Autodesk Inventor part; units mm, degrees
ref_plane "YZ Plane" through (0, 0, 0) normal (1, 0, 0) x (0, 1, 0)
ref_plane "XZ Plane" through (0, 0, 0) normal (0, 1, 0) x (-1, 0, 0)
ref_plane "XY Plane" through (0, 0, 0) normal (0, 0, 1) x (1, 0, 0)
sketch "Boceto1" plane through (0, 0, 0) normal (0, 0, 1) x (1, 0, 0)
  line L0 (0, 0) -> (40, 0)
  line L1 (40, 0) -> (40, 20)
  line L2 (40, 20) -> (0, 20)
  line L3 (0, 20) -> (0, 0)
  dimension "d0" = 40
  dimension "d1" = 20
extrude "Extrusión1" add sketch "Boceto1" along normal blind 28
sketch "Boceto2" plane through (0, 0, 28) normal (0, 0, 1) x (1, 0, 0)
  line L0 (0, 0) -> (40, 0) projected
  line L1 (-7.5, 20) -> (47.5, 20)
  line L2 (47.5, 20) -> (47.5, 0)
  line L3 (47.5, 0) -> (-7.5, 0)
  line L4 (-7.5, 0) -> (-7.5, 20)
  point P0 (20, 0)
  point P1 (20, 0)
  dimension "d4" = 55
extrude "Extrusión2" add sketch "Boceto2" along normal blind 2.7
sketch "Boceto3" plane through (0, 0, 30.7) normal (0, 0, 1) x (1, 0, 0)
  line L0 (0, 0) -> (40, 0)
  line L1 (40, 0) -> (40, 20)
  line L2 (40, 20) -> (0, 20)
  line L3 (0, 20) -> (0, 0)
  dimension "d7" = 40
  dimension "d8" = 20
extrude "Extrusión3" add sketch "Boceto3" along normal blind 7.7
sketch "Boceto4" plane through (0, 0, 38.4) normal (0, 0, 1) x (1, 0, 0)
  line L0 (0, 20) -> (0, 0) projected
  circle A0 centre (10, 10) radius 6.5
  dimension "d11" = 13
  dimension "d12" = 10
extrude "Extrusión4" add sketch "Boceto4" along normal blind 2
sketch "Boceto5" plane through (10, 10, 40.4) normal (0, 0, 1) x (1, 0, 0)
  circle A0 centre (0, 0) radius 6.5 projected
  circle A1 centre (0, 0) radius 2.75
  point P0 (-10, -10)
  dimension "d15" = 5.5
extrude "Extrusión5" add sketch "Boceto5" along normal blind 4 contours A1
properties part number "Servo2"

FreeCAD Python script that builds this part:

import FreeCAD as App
import Part
import Sketcher
from FreeCAD import Vector
Q = App.Units.Quantity


def add_polygon(sketch, points):
    """Adds a closed chain of lines whose ends are joined by coincident constraints."""
    first, n = sketch.GeometryCount, len(points)
    for a, b in zip(points, points[1:] + points[:1]):
        sketch.addGeometry(Part.LineSegment(App.Vector(*a, 0), App.Vector(*b, 0)), False)
    for i in range(n):
        sketch.addConstraint(Sketcher.Constraint("Coincident", first + i, 2, first + (i + 1) % n, 1))

doc = App.newDocument("Part")
params = doc.addObject("Spreadsheet::Sheet", "Params")
for row, (alias, value) in enumerate([
    ("sketch1_width", "40 mm"),
    ("sketch1_height", "20 mm"),
    ("pad1_length", "28 mm"),
    ("sketch2_width", "55 mm"),
    ("sketch2_height", "20 mm"),
    ("pad2_length", "2.7 mm"),
    ("sketch3_width", "40 mm"),
    ("sketch3_height", "20 mm"),
    ("pad3_length", "7.7 mm"),
    ("sketch4_diameter", "13 mm"),
    ("pad4_length", "2 mm"),
    ("sketch5_diameter", "5.5 mm"),
    ("pad5_length", "4 mm"),
], start=1):
    params.set(f"A{row}", alias)
    params.set(f"B{row}", "=" + value)
    params.setAlias(f"B{row}", alias)

body = doc.addObject("PartDesign::Body", "Body")

# Sketch on XY plane
sketch1 = body.newObject("Sketcher::SketchObject", "Sketch")
sketch1.AttachmentSupport = (doc.getObject("XY_Plane"), [""])
sketch1.MapMode = "FlatFace"
add_polygon(sketch1, [(0, 20), (0, 0), (40, 0), (40, 20)])  # lines 0-3
sketch1.addConstraint([
    Sketcher.Constraint("Vertical", 0),
    Sketcher.Constraint("Horizontal", 1),
    Sketcher.Constraint("Vertical", 2),
    Sketcher.Constraint("Horizontal", 3),
    Sketcher.Constraint("Coincident", 0, 2, -1, 1),
    Sketcher.Constraint("DistanceX", 1, 1, 1, 2, Q("40 mm")),
    Sketcher.Constraint("DistanceY", 0, 2, 0, 1, Q("20 mm")),
])
sketch1.setExpression("Constraints[9]", "Params.sketch1_width")
sketch1.setExpression("Constraints[10]", "Params.sketch1_height")
pad1 = body.newObject("PartDesign::Pad", "Pad")
pad1.Profile = sketch1
pad1.setExpression("Length", "Params.pad1_length")

# Sketch on XY plane
sketch2 = body.newObject("Sketcher::SketchObject", "Sketch001")
sketch2.AttachmentSupport = (doc.getObject("XY_Plane"), [""])
sketch2.MapMode = "FlatFace"
sketch2.AttachmentOffset = App.Placement(Vector(0, 0, 28), App.Rotation())
add_polygon(sketch2, [(-8, 0), (48, 0), (48, 20), (-8, 20)])  # lines 0-3
sketch2.addConstraint([
    Sketcher.Constraint("Horizontal", 0),
    Sketcher.Constraint("Vertical", 1),
    Sketcher.Constraint("Horizontal", 2),
    Sketcher.Constraint("Vertical", 3),
    Sketcher.Constraint("PointOnObject", 0, 2, -1),
    Sketcher.Constraint("DistanceX", 0, 1, 0, 2, Q("55 mm")),
    Sketcher.Constraint("DistanceY", 1, 1, 1, 2, Q("20 mm")),
    Sketcher.Constraint("DistanceX", -1, 1, 0, 2, Q("47.5 mm")),
])
sketch2.setExpression("Constraints[9]", "Params.sketch2_width")
sketch2.setExpression("Constraints[10]", "Params.sketch2_height")
pad2 = body.newObject("PartDesign::Pad", "Pad001")
pad2.Profile = sketch2
pad2.setExpression("Length", "Params.pad2_length")

# Sketch on XY plane
sketch3 = body.newObject("Sketcher::SketchObject", "Sketch002")
sketch3.AttachmentSupport = (doc.getObject("XY_Plane"), [""])
sketch3.MapMode = "FlatFace"
sketch3.AttachmentOffset = App.Placement(Vector(0, 0, 30.7), App.Rotation())
add_polygon(sketch3, [(0, 20), (0, 0), (40, 0), (40, 20)])  # lines 0-3
sketch3.addConstraint([
    Sketcher.Constraint("Vertical", 0),
    Sketcher.Constraint("Horizontal", 1),
    Sketcher.Constraint("Vertical", 2),
    Sketcher.Constraint("Horizontal", 3),
    Sketcher.Constraint("Coincident", 0, 2, -1, 1),
    Sketcher.Constraint("DistanceX", 1, 1, 1, 2, Q("40 mm")),
    Sketcher.Constraint("DistanceY", 0, 2, 0, 1, Q("20 mm")),
])
sketch3.setExpression("Constraints[9]", "Params.sketch3_width")
sketch3.setExpression("Constraints[10]", "Params.sketch3_height")
pad3 = body.newObject("PartDesign::Pad", "Pad002")
pad3.Profile = sketch3
pad3.setExpression("Length", "Params.pad3_length")

# Sketch on XY plane
sketch4 = body.newObject("Sketcher::SketchObject", "Sketch003")
sketch4.AttachmentSupport = (doc.getObject("XY_Plane"), [""])
sketch4.MapMode = "FlatFace"
sketch4.AttachmentOffset = App.Placement(Vector(0, 0, 38.4), App.Rotation())
sketch4.addGeometry(Part.Circle(Vector(10, 10, 0), Vector(0, 0, 1), 6), False)
sketch4.addConstraint([
    Sketcher.Constraint("Diameter", 0, Q("13 mm")),
    Sketcher.Constraint("DistanceX", -1, 1, 0, 3, Q("10 mm")),
    Sketcher.Constraint("DistanceY", -1, 1, 0, 3, Q("10 mm")),
])
sketch4.setExpression("Constraints[0]", "Params.sketch4_diameter")
pad4 = body.newObject("PartDesign::Pad", "Pad003")
pad4.Profile = sketch4
pad4.setExpression("Length", "Params.pad4_length")

# Sketch on XY plane
sketch5 = body.newObject("Sketcher::SketchObject", "Sketch004")
sketch5.AttachmentSupport = (doc.getObject("XY_Plane"), [""])
sketch5.MapMode = "FlatFace"
sketch5.AttachmentOffset = App.Placement(Vector(0, 0, 40.4), App.Rotation())
sketch5.addGeometry(Part.Circle(Vector(10, 10, 0), Vector(0, 0, 1), 2.8), False)
sketch5.addConstraint([
    Sketcher.Constraint("Diameter", 0, Q("5.5 mm")),
    Sketcher.Constraint("DistanceX", -1, 1, 0, 3, Q("10 mm")),
    Sketcher.Constraint("DistanceY", -1, 1, 0, 3, Q("10 mm")),
])
sketch5.setExpression("Constraints[0]", "Params.sketch5_diameter")
pad5 = body.newObject("PartDesign::Pad", "Pad004")
pad5.Profile = sketch5
pad5.setExpression("Length", "Params.pad5_length")

doc.recompute()
